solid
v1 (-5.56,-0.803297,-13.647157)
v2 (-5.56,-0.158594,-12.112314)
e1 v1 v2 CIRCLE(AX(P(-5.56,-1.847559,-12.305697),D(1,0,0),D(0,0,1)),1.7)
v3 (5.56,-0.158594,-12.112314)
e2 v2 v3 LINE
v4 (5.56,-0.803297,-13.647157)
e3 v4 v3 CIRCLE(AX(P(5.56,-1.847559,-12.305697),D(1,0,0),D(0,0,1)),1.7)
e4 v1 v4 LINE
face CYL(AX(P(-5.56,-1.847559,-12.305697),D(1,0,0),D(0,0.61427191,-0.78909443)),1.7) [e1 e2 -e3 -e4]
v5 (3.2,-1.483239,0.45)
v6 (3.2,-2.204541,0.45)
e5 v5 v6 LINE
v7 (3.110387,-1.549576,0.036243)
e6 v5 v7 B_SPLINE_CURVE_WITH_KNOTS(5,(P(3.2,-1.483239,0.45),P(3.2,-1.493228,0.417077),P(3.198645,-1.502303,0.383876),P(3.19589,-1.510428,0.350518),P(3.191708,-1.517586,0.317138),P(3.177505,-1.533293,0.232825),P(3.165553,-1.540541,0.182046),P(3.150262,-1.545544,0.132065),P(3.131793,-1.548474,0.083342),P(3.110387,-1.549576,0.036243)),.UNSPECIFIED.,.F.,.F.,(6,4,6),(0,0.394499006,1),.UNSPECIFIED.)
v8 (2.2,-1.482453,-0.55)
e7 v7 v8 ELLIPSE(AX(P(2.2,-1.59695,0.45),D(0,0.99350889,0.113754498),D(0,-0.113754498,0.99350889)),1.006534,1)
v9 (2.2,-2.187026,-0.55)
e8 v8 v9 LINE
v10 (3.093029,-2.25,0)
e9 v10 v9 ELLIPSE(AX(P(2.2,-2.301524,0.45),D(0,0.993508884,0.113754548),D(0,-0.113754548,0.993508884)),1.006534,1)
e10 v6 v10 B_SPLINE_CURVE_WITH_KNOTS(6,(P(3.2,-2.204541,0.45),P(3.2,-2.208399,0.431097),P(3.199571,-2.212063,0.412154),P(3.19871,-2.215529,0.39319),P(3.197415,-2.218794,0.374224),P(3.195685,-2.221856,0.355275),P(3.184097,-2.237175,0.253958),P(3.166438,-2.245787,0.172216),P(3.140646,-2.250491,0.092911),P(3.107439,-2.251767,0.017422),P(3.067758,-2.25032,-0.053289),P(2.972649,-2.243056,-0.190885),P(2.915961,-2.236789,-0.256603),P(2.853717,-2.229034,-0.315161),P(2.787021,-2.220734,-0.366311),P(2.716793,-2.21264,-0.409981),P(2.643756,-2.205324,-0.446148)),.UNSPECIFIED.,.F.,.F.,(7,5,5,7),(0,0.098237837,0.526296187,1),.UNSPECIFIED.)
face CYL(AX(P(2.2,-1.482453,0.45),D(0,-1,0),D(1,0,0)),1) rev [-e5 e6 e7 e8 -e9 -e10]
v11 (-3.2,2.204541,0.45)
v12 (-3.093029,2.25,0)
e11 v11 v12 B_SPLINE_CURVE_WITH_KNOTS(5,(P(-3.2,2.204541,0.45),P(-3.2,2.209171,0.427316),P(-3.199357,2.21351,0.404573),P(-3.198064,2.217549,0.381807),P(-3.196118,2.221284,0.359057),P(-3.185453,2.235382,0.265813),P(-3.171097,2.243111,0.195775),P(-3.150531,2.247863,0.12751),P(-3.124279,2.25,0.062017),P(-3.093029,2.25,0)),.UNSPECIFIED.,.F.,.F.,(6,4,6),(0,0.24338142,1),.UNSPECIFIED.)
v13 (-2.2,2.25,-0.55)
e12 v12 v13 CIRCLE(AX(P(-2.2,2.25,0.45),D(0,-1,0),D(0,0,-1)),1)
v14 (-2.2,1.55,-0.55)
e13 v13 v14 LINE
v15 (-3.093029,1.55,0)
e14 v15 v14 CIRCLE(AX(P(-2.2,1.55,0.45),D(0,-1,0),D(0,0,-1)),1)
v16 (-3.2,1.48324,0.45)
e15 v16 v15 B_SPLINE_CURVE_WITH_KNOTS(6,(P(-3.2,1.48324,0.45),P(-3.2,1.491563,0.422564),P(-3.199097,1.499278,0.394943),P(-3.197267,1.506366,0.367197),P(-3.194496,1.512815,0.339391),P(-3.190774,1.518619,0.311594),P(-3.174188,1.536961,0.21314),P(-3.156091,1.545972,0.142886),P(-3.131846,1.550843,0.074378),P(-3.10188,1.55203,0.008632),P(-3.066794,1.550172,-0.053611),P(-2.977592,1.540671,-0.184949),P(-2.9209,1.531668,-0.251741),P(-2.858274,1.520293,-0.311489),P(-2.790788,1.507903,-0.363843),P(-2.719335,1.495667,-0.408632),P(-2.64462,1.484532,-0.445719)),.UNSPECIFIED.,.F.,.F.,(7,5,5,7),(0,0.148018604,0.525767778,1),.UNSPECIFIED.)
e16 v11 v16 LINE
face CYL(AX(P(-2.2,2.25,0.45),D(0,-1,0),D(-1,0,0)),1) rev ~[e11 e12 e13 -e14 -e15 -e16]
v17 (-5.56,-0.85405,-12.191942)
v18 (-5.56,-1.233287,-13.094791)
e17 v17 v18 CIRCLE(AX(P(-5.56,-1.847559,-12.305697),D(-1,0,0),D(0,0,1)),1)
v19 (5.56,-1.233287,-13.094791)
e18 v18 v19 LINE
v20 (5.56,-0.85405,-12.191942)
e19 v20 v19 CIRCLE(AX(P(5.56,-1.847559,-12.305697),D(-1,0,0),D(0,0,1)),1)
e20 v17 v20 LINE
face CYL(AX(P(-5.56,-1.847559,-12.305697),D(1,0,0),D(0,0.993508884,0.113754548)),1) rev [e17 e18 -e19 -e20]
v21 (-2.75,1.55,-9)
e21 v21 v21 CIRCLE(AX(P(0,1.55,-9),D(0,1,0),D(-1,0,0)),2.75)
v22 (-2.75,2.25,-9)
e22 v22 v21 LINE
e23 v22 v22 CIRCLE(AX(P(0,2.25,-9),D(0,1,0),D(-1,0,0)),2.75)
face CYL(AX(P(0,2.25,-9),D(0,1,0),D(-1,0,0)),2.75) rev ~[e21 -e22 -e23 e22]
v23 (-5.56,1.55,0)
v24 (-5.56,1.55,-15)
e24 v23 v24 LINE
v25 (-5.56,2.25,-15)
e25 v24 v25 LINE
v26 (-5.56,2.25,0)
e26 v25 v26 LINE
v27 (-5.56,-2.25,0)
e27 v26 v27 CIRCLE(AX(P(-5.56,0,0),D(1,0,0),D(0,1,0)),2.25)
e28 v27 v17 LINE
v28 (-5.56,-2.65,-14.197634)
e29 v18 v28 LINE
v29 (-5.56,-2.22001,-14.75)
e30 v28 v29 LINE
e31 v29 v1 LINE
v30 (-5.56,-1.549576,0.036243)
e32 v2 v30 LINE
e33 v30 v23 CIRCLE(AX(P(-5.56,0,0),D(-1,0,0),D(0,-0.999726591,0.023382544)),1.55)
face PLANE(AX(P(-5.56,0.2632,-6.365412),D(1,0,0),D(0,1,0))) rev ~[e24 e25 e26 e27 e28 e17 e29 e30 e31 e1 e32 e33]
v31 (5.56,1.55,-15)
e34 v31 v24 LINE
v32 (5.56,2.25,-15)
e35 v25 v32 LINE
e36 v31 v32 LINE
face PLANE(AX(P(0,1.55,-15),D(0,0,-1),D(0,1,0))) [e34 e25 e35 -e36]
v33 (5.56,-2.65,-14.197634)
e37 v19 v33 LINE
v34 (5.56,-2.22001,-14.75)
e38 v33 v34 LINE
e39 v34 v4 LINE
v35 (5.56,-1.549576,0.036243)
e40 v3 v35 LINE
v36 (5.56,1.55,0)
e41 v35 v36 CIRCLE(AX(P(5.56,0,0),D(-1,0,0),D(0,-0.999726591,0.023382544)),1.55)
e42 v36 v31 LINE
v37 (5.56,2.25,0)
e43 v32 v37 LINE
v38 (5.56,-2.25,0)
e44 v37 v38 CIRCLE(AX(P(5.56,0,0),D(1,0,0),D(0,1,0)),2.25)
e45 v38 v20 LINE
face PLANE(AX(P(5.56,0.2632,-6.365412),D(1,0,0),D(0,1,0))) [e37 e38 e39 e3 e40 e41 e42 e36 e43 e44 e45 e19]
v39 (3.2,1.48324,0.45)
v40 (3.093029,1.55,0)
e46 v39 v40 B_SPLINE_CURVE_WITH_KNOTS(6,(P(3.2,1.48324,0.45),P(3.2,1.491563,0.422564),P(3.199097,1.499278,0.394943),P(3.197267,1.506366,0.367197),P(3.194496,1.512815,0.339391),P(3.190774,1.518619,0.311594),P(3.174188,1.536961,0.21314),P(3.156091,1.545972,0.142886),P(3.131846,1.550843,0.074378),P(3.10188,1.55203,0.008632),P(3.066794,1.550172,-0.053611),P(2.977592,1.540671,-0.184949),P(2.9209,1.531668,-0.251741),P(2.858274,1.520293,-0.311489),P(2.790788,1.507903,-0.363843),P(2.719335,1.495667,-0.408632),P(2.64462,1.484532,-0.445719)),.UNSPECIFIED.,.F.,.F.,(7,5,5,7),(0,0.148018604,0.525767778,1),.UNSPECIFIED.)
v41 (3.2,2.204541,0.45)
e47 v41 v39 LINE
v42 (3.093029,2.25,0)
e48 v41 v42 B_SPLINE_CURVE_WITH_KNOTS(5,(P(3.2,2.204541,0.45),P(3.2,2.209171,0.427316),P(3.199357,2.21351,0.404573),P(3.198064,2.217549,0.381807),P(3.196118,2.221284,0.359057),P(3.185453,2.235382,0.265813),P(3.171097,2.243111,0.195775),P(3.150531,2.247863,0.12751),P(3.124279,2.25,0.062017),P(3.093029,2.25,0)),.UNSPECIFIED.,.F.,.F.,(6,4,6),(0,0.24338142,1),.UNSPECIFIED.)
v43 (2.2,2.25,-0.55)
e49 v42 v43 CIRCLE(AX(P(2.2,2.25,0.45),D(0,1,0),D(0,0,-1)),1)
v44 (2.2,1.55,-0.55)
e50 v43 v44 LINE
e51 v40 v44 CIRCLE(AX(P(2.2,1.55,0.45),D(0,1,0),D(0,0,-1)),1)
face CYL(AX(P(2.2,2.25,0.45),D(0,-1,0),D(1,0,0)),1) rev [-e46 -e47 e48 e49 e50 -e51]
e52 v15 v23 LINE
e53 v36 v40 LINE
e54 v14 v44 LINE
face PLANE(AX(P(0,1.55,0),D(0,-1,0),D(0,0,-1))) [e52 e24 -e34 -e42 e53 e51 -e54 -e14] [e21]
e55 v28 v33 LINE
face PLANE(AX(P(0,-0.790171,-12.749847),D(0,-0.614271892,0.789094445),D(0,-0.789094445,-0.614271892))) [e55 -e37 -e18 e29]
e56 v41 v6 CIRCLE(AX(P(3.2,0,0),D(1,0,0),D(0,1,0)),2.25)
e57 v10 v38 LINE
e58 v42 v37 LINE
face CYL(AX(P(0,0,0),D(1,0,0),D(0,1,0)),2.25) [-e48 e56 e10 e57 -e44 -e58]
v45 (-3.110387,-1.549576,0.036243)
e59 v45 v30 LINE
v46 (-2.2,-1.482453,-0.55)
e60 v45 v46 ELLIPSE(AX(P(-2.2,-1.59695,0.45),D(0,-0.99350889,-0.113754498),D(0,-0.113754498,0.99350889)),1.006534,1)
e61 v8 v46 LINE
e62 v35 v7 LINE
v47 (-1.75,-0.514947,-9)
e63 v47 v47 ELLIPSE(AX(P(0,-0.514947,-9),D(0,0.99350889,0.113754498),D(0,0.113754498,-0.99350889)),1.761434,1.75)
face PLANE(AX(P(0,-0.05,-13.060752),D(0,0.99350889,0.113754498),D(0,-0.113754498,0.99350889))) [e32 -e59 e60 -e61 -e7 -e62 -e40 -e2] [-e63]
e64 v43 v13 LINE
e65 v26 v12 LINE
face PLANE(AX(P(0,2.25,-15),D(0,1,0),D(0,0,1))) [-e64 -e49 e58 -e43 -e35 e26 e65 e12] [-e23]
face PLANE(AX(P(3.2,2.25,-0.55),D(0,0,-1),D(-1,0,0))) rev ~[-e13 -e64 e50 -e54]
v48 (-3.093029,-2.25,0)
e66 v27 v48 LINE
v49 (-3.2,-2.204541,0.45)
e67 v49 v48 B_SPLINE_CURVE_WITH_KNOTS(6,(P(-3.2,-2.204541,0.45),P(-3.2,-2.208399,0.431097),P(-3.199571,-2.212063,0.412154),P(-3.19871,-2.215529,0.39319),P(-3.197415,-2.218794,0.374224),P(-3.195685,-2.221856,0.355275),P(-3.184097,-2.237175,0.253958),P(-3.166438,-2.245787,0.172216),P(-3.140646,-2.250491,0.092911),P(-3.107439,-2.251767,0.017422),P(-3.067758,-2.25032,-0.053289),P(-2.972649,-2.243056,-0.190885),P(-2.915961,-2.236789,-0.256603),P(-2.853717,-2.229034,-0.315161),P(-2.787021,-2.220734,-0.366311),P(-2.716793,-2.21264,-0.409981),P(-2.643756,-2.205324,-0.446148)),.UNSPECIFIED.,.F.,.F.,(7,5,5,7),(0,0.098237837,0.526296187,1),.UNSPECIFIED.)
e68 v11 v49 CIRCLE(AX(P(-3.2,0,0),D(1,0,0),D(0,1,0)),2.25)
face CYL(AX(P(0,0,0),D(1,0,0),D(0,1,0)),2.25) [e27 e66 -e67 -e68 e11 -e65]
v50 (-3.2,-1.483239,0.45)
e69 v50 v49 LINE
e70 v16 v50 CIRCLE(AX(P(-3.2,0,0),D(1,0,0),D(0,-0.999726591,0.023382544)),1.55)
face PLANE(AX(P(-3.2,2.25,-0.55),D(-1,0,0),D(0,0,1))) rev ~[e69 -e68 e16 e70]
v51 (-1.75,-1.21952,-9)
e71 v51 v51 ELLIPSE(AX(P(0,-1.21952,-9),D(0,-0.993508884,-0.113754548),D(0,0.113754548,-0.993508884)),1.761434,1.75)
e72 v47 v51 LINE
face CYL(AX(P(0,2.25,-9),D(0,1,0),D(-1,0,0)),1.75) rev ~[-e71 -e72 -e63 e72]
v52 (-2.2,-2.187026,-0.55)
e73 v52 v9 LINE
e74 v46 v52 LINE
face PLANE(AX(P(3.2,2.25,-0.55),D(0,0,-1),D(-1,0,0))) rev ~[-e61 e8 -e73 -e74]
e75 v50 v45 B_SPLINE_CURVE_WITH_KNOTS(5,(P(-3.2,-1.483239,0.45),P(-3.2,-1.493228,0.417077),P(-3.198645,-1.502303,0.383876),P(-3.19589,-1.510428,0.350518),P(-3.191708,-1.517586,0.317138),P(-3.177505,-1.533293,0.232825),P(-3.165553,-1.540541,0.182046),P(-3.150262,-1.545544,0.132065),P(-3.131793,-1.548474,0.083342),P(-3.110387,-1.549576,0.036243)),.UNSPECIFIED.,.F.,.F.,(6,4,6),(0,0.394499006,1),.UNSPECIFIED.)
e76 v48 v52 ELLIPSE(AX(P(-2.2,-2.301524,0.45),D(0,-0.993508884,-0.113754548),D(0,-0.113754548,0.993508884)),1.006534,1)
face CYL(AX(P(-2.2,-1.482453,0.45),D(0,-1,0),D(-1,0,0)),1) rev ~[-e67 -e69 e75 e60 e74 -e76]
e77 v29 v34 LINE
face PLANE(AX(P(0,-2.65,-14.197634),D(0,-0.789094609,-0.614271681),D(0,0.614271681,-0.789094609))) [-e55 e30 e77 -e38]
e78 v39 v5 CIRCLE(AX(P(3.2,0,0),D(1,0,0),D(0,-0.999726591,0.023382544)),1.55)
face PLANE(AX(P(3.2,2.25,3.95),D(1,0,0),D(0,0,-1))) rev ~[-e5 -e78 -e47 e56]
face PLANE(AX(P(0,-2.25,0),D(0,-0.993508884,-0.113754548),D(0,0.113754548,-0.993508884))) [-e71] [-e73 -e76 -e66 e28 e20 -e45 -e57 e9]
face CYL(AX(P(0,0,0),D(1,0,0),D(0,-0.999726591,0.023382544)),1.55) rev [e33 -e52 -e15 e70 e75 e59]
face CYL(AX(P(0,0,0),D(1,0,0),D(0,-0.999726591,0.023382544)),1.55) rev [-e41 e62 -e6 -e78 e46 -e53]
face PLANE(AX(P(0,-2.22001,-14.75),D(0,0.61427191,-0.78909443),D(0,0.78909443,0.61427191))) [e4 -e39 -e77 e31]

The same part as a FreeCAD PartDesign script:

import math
import FreeCAD as App
import Part
import Sketcher
from FreeCAD import Vector
Q = App.Units.Quantity


def edges_at(feature, points):
    """Names of the edges that pass closest to the given points."""
    edges = feature.Shape.Edges
    near = lambda p: min(range(len(edges)), key=lambda i: edges[i].distToShape(Part.Vertex(*p))[0])
    return sorted({f"Edge{near(p) + 1}" for p in points})

doc = App.newDocument("Part")
body = doc.addObject("PartDesign::Body", "Body")

sketch1 = body.newObject("Sketcher::SketchObject", "Sketch")
sketch1.AttachmentSupport = (doc.getObject("YZ_Plane"), [""])
sketch1.MapMode = "FlatFace"
sketch1.addGeometry([
    Part.LineSegment(Vector(1.55, -15, 0), Vector(2.25, -15, 0)),
    Part.LineSegment(Vector(2.25, -15, 0), Vector(2.25, 0, 0)),
    Part.ArcOfCircle(Part.Circle(Vector(0, 0, 0), Vector(0, 0, 1), 2.25), math.radians(0), math.radians(180)),
    Part.LineSegment(Vector(-2.25, 0, 0), Vector(-0.790171, -12.749847, 0)),
    Part.LineSegment(Vector(-0.790171, -12.749847, 0), Vector(-2.65, -14.197634, 0)),
    Part.LineSegment(Vector(-2.65, -14.197634, 0), Vector(-2.22001, -14.75, 0)),
    Part.LineSegment(Vector(-2.22001, -14.75, 0), Vector(-0.05, -13.060752, 0)),
    Part.LineSegment(Vector(-0.05, -13.060752, 0), Vector(-1.549576, 0.036243, 0)),
    Part.ArcOfCircle(Part.Circle(Vector(0, 0, 0), Vector(0, 0, 1), 1.55), math.radians(-0.000002), math.radians(178.660157)),
    Part.LineSegment(Vector(1.55, 0, 0), Vector(1.55, -15, 0)),
], False)
sketch1.addConstraint([
    Sketcher.Constraint("Coincident", 0, 2, 1, 1),
    Sketcher.Constraint("Tangent", 1, 2, 2, 1),
    Sketcher.Constraint("Coincident", 2, 2, 3, 1),
    Sketcher.Constraint("Coincident", 3, 2, 4, 1),
    Sketcher.Constraint("Coincident", 4, 2, 5, 1),
    Sketcher.Constraint("Coincident", 5, 2, 6, 1),
    Sketcher.Constraint("Coincident", 6, 2, 7, 1),
    Sketcher.Constraint("Coincident", 7, 2, 8, 2),
    Sketcher.Constraint("Tangent", 8, 1, 9, 1),
    Sketcher.Constraint("Coincident", 9, 2, 0, 1),
    Sketcher.Constraint("Horizontal", 0),
    Sketcher.Constraint("Vertical", 1),
    Sketcher.Constraint("Vertical", 9),
    Sketcher.Constraint("Coincident", 2, 3, -1, 1),
    Sketcher.Constraint("Coincident", 8, 3, -1, 1),
    Sketcher.Constraint("PointOnObject", 2, 2, -1),
    Sketcher.Constraint("Perpendicular", 4, 5),
    Sketcher.Constraint("Perpendicular", 5, 6),
    Sketcher.Constraint("Parallel", 3, 7),
    Sketcher.Constraint("DistanceY", 1, 1, 1, 2, Q("15 mm")),
    Sketcher.Constraint("Radius", 2, Q("2.25 mm")),
    Sketcher.Constraint("Radius", 8, Q("1.55 mm")),
    Sketcher.Constraint("Distance", 5, Q("0.7 mm")),
    Sketcher.Constraint("DistanceX", 4, 2, 0, 2, Q("4.9 mm")),
    Sketcher.Constraint("DistanceX", 4, 2, 6, 2, Q("2.6 mm")),
    Sketcher.Constraint("Distance", 6, Q("2.75 mm")),
    Sketcher.Constraint("DistanceY", 5, 2, -1, 1, Q("14.75 mm")),
    Sketcher.Constraint("Distance", 3, Q("12.833148 mm")),
])
pad1 = body.newObject("PartDesign::Pad", "Pad")
pad1.Profile = sketch1
pad1.Length = 11.12
pad1.Midplane = True

sketch2 = body.newObject("Sketcher::SketchObject", "Sketch001")
sketch2.AttachmentSupport = (doc.getObject("XZ_Plane"), [""])
sketch2.MapMode = "FlatFace"
sketch2.AttachmentOffset = App.Placement(Vector(0, 0, -2.25), App.Rotation())
sketch2.addGeometry([
    Part.LineSegment(Vector(3.2, 3.95, 0), Vector(3.2, -0.55, 0)),
    Part.LineSegment(Vector(3.2, -0.55, 0), Vector(-3.2, -0.55, 0)),
    Part.LineSegment(Vector(-3.2, -0.55, 0), Vector(-3.2, 3.95, 0)),
    Part.LineSegment(Vector(-3.2, 3.95, 0), Vector(3.2, 3.95, 0)),
    Part.Circle(Vector(0, -9, 0), Vector(0, 0, 1), 1.75),
], False)
sketch2.addConstraint([
    Sketcher.Constraint("Coincident", 0, 2, 1, 1),
    Sketcher.Constraint("Coincident", 1, 2, 2, 1),
    Sketcher.Constraint("Coincident", 2, 2, 3, 1),
    Sketcher.Constraint("Coincident", 3, 2, 0, 1),
    Sketcher.Constraint("Vertical", 0),
    Sketcher.Constraint("Horizontal", 1),
    Sketcher.Constraint("Vertical", 2),
    Sketcher.Constraint("Horizontal", 3),
    Sketcher.Constraint("PointOnObject", 4, 3, -2),
    Sketcher.Constraint("Diameter", 4, Q("3.5 mm")),
    Sketcher.Constraint("DistanceX", 1, 2, 1, 1, Q("6.4 mm")),
    Sketcher.Constraint("DistanceY", 0, 2, 0, 1, Q("4.5 mm")),
    Sketcher.Constraint("DistanceY", 4, 3, -1, 1, Q("9 mm")),
    Sketcher.Constraint("DistanceX", -1, 1, 0, 2, Q("3.2 mm")),
    Sketcher.Constraint("DistanceY", 0, 2, -1, 1, Q("0.55 mm")),
])
pocket1 = body.newObject("PartDesign::Pocket", "Pocket")
pocket1.Profile = sketch2
pocket1.Type = "ThroughAll"
pocket1.Reversed = True

sketch3 = body.newObject("Sketcher::SketchObject", "Sketch002")
sketch3.AttachmentSupport = (doc.getObject("XZ_Plane"), [""])
sketch3.MapMode = "FlatFace"
sketch3.AttachmentOffset = App.Placement(Vector(0, 0, -2.25), App.Rotation())
sketch3.addGeometry([
    Part.Circle(Vector(0, -9, 0), Vector(0, 0, 1), 2.75),
    Part.Circle(Vector(0, -9, 0), Vector(0, 0, 1), 1.75),
], False)
sketch3.addConstraint([
    Sketcher.Constraint("Coincident", 1, 3, 0, 3),
    Sketcher.Constraint("PointOnObject", 0, 3, -2),
    Sketcher.Constraint("Diameter", 0, Q("5.5 mm")),
    Sketcher.Constraint("Diameter", 1, Q("3.5 mm")),
    Sketcher.Constraint("DistanceY", 0, 3, -1, 1, Q("9 mm")),
])
pocket2 = body.newObject("PartDesign::Pocket", "Pocket001")
pocket2.Profile = sketch3
pocket2.Length = 0.7
pocket2.Reversed = True
doc.recompute()

fillet = body.newObject("PartDesign::Fillet", "Fillet")
fillet.Base = (pocket2, edges_at(pocket2, [
    (-3.2, -1.835, -0.55),
    (-3.2, 1.9, -0.55),
    (3.2, 1.9, -0.55),
    (3.2, -1.835, -0.55),
    (0, -0.79, -12.75),
]))
fillet.Radius = 1
doc.recompute()

fillet2 = body.newObject("PartDesign::Fillet", "Fillet001")
fillet2.Base = (fillet, edges_at(fillet, [(0, -0.05, -13.061)]))
fillet2.Radius = 1.7

doc.recompute()
